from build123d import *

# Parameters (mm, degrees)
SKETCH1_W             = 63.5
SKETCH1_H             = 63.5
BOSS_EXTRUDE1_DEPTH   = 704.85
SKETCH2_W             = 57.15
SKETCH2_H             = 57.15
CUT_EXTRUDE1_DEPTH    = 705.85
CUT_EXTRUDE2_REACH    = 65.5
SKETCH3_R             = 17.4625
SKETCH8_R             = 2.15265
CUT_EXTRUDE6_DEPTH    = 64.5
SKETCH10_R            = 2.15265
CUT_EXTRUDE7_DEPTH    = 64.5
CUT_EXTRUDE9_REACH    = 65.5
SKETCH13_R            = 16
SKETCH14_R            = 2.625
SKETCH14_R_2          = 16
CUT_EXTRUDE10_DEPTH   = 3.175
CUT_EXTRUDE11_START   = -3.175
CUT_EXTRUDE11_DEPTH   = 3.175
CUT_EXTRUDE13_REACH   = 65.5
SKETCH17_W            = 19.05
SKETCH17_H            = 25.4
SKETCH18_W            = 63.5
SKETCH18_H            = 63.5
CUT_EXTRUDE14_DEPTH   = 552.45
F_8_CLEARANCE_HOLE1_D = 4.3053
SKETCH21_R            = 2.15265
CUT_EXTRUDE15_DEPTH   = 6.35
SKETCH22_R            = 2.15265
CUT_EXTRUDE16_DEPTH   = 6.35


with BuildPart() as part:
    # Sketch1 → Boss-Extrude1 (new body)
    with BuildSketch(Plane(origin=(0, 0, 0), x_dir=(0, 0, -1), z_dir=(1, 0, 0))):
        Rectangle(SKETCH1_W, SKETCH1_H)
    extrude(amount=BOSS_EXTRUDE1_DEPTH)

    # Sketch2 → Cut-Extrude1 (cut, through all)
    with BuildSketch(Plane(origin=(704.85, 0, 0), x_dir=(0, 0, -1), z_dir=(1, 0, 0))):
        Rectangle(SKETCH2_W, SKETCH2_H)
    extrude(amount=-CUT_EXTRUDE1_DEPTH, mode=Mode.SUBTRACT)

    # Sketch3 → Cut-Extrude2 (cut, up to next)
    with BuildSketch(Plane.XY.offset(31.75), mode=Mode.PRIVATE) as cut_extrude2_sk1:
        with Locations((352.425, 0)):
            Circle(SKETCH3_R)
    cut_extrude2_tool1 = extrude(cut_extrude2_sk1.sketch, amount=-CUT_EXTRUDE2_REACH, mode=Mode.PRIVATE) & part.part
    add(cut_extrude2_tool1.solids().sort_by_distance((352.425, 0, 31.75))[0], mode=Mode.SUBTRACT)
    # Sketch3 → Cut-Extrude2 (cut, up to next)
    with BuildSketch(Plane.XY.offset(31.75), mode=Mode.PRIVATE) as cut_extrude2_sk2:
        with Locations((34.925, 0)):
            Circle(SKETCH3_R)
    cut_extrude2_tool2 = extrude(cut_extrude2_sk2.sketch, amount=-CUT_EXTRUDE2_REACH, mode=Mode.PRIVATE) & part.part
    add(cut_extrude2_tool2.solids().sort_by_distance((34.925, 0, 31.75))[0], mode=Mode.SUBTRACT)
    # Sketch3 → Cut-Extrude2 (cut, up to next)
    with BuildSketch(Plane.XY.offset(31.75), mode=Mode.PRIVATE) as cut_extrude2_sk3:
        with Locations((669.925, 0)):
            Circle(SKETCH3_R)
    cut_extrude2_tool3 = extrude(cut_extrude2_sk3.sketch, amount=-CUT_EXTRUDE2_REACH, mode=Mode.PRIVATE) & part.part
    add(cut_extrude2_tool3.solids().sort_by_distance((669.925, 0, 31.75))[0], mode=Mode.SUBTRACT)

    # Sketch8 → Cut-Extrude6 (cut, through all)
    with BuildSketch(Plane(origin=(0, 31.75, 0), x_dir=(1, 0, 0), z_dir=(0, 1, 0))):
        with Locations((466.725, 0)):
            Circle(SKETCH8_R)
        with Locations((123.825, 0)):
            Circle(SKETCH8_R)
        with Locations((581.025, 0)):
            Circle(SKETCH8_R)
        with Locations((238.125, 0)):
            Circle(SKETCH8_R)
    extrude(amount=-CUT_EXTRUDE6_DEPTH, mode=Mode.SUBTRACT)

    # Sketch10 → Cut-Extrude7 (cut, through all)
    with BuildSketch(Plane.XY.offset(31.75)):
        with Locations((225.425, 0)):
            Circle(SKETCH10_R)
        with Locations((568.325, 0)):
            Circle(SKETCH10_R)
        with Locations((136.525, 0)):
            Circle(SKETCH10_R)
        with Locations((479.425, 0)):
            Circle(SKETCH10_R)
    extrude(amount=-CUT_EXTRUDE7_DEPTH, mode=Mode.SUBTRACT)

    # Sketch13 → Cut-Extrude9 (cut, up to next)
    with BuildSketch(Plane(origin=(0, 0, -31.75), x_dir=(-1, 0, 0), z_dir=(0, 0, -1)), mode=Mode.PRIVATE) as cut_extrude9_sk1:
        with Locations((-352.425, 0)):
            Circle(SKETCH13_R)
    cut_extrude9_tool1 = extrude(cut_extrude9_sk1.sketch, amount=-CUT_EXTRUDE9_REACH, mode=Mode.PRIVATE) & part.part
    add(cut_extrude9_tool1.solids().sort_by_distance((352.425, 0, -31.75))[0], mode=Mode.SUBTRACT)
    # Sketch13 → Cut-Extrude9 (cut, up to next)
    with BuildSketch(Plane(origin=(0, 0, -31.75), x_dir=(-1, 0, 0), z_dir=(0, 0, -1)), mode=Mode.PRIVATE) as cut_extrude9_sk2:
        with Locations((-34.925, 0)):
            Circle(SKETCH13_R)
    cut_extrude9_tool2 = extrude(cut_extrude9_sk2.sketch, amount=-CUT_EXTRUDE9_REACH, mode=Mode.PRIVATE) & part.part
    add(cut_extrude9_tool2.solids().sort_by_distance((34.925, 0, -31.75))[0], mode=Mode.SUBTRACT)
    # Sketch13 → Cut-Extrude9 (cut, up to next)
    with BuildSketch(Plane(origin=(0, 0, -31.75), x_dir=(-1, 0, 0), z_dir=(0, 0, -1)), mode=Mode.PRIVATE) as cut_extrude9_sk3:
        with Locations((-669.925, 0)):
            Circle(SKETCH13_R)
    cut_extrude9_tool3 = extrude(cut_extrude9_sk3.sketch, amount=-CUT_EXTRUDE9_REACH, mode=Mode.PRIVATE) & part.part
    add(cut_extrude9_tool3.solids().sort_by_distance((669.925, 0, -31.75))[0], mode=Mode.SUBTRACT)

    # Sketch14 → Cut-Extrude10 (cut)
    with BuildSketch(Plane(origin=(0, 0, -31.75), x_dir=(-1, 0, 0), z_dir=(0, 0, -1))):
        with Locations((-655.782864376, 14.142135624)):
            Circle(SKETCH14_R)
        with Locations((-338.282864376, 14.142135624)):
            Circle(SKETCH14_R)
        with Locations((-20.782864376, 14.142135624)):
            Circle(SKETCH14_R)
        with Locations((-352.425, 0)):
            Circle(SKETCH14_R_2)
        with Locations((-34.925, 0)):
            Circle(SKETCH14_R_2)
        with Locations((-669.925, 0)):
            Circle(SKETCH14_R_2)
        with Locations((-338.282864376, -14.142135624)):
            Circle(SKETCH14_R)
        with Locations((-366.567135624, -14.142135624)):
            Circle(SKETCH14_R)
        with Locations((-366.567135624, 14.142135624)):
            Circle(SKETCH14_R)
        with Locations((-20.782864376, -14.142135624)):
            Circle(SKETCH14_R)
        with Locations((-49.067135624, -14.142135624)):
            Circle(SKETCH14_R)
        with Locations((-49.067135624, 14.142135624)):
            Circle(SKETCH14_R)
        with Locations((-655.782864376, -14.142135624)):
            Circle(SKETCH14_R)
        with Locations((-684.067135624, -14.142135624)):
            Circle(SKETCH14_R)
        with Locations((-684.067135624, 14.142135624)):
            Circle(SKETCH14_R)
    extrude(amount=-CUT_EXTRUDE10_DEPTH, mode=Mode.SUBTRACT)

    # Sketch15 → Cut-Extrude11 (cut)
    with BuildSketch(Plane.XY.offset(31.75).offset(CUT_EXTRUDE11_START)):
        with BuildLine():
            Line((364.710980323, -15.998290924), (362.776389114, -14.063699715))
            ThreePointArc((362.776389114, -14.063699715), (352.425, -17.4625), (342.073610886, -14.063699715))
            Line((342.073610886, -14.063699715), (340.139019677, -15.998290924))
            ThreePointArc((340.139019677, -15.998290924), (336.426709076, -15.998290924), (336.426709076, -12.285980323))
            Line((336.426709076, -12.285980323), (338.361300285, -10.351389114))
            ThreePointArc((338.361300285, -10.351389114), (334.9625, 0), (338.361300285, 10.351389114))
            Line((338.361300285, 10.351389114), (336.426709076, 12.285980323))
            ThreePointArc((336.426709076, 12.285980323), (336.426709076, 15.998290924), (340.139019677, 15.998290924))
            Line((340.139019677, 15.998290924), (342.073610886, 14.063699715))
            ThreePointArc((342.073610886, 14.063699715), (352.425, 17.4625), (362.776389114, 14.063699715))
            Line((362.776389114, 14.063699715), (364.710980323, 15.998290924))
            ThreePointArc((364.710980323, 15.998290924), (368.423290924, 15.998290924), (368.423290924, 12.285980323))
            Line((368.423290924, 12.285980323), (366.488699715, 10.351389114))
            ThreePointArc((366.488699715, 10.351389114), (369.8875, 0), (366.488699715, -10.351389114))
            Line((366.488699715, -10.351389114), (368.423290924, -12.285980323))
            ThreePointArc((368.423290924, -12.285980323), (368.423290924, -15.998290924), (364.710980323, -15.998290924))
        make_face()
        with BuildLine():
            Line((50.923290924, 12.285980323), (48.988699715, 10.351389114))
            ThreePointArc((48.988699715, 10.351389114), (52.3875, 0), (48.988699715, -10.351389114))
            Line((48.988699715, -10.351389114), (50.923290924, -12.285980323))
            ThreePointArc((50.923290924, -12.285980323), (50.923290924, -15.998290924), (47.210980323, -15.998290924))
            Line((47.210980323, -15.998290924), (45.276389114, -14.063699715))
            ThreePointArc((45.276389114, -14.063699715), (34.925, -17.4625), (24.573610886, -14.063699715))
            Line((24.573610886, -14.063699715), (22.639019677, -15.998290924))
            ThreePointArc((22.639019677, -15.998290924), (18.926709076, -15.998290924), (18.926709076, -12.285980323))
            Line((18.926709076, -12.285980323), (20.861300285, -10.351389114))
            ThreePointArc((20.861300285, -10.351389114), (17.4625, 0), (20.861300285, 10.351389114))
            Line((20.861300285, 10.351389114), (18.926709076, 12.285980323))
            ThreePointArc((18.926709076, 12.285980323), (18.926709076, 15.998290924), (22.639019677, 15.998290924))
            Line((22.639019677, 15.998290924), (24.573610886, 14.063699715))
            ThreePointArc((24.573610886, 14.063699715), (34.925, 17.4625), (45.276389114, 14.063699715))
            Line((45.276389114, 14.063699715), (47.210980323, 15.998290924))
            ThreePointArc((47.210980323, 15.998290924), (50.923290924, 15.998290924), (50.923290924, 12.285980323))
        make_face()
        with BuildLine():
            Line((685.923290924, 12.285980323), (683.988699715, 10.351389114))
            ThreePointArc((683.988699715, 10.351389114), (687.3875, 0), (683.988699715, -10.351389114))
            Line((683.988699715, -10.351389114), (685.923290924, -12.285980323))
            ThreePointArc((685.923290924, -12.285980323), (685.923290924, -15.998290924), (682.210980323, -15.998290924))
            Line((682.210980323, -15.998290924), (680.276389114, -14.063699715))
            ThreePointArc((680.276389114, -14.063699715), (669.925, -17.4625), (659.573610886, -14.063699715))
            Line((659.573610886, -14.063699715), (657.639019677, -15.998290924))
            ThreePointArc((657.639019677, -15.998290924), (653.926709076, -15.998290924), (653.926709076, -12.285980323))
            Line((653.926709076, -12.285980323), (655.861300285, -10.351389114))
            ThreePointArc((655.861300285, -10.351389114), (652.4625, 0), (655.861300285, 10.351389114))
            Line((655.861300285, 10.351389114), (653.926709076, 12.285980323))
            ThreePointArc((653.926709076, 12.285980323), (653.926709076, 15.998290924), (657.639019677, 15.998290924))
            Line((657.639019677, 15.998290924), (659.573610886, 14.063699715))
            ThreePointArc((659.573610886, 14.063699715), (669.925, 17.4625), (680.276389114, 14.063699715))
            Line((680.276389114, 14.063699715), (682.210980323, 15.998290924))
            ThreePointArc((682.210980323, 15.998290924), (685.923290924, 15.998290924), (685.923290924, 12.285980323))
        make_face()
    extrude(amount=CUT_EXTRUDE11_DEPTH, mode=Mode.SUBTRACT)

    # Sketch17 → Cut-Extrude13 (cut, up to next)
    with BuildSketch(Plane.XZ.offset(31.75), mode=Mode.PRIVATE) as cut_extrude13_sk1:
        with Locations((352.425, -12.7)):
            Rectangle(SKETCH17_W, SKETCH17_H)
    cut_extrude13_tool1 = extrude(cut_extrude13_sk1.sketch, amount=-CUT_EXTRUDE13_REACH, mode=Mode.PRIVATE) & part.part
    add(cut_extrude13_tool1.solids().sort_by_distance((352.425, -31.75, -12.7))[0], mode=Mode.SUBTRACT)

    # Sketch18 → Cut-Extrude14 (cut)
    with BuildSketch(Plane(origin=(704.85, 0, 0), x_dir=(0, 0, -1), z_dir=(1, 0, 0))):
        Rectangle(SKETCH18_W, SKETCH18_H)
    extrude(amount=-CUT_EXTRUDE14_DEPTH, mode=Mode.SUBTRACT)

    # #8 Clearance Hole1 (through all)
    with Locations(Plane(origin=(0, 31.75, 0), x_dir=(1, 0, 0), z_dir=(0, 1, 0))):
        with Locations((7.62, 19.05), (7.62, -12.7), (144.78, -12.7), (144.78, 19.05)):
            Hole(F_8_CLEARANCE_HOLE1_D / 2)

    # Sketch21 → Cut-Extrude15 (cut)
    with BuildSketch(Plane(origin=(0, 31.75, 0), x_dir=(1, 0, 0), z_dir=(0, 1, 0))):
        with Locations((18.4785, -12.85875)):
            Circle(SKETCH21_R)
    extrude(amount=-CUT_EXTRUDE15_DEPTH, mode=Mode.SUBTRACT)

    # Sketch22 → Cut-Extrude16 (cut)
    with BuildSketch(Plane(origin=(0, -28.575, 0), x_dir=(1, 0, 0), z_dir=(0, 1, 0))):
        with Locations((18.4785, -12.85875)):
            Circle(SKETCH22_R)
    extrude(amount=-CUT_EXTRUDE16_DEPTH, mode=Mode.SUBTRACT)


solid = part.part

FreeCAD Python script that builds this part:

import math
import FreeCAD as App
import Part
import Sketcher

V = App.Vector
Q = App.Units.Quantity


def add_polygon(sketch, points):
    """Adds a closed chain of lines whose ends are joined by coincident constraints."""
    first, n = sketch.GeometryCount, len(points)
    for a, b in zip(points, points[1:] + points[:1]):
        sketch.addGeometry(Part.LineSegment(App.Vector(*a, 0), App.Vector(*b, 0)), False)
    for i in range(n):
        sketch.addConstraint(Sketcher.Constraint("Coincident", first + i, 2, first + (i + 1) % n, 1))

doc = App.newDocument("Part")
body = doc.addObject("PartDesign::Body", "Body")

sketch1 = doc.addObject("Sketcher::SketchObject", "Sketch")
body.addObject(sketch1)
sketch1.AttachmentSupport = (doc.YZ_Plane, [""])
sketch1.MapMode = "FlatFace"
add_polygon(sketch1, [(32, 32), (-32, 32), (-32, -32), (32, -32)])
sketch1.addConstraint([
    Sketcher.Constraint("Horizontal", 0),
    Sketcher.Constraint("Vertical", 1),
    Sketcher.Constraint("Horizontal", 2),
    Sketcher.Constraint("Vertical", 3),
    Sketcher.Constraint("Symmetric", 0, 2, 2, 2, -1, 1),
    Sketcher.Constraint("Equal", 2, 1),
    Sketcher.Constraint("DistanceX", 0, 2, 0, 1, Q("2.5 in")),
])
pad1 = doc.addObject("PartDesign::Pad", "Pad")
body.addObject(pad1)
pad1.Profile = sketch1
pad1.Length = Q("27.75 in")

sketch2 = doc.addObject("Sketcher::SketchObject", "Sketch001")
body.addObject(sketch2)
sketch2.AttachmentSupport = (doc.YZ_Plane, [""])
sketch2.MapMode = "FlatFace"
sketch2.AttachmentOffset = App.Placement(V(0, 0, 27.75 * 25.4), App.Rotation())
add_polygon(sketch2, [(29, 29), (-29, 29), (-29, -29), (29, -29)])
sketch2.addConstraint([
    Sketcher.Constraint("Horizontal", 0),
    Sketcher.Constraint("Vertical", 1),
    Sketcher.Constraint("Horizontal", 2),
    Sketcher.Constraint("Vertical", 3),
    Sketcher.Constraint("Symmetric", 0, 2, 2, 2, -1, 1),
    Sketcher.Constraint("Equal", 2, 1),
    Sketcher.Constraint("DistanceX", 0, 2, 0, 1, Q("2.25 in")),
])
pocket1 = doc.addObject("PartDesign::Pocket", "Pocket")
body.addObject(pocket1)
pocket1.Profile = sketch2
pocket1.Type = "ThroughAll"

sketch3 = doc.addObject("Sketcher::SketchObject", "Sketch002")
body.addObject(sketch3)
sketch3.AttachmentSupport = (doc.XY_Plane, [""])
sketch3.MapMode = "FlatFace"
sketch3.AttachmentOffset = App.Placement(V(0, 0, 1.25 * 25.4), App.Rotation())
sketch3.addGeometry(Part.Circle(V(352, 0, 0), V(0, 0, 1), 17), False)
sketch3.addConstraint([
    Sketcher.Constraint("PointOnObject", 0, 3, -1),
    Sketcher.Constraint("Diameter", 0, Q("1.375 in")),
    Sketcher.Constraint("DistanceX", -1, 1, 0, 3, Q("13.875 in")),
])
pocket2 = doc.addObject("PartDesign::Pocket", "Pocket001")
body.addObject(pocket2)
pocket2.Profile = sketch3
pocket2.Type = "UpToFirst"

sketch4 = doc.addObject("Sketcher::SketchObject", "Sketch003")
body.addObject(sketch4)
sketch4.AttachmentSupport = (doc.XY_Plane, [""])
sketch4.MapMode = "FlatFace"
sketch4.AttachmentOffset = App.Placement(V(0, 0, 1.25 * 25.4), App.Rotation())
sketch4.addGeometry(Part.Circle(V(35, 0, 0), V(0, 0, 1), 17), False)
sketch4.addConstraint([
    Sketcher.Constraint("PointOnObject", 0, 3, -1),
    Sketcher.Constraint("Diameter", 0, Q("1.375 in")),
    Sketcher.Constraint("DistanceX", -1, 1, 0, 3, Q("1.375 in")),
])
pocket3 = doc.addObject("PartDesign::Pocket", "Pocket002")
body.addObject(pocket3)
pocket3.Profile = sketch4
pocket3.Type = "UpToFirst"

sketch5 = doc.addObject("Sketcher::SketchObject", "Sketch004")
body.addObject(sketch5)
sketch5.AttachmentSupport = (doc.XY_Plane, [""])
sketch5.MapMode = "FlatFace"
sketch5.AttachmentOffset = App.Placement(V(0, 0, 1.25 * 25.4), App.Rotation())
sketch5.addGeometry(Part.Circle(V(670, 0, 0), V(0, 0, 1), 17), False)
sketch5.addConstraint([
    Sketcher.Constraint("PointOnObject", 0, 3, -1),
    Sketcher.Constraint("Diameter", 0, Q("1.375 in")),
    Sketcher.Constraint("DistanceX", -1, 1, 0, 3, Q("26.375 in")),
])
pocket4 = doc.addObject("PartDesign::Pocket", "Pocket003")
body.addObject(pocket4)
pocket4.Profile = sketch5
pocket4.Type = "UpToFirst"

sketch6 = doc.addObject("Sketcher::SketchObject", "Sketch005")
body.addObject(sketch6)
sketch6.AttachmentSupport = (doc.XZ_Plane, [""])
sketch6.MapMode = "FlatFace"
sketch6.AttachmentOffset = App.Placement(V(0, 0, -1.25 * 25.4), App.Rotation())
sketch6.addGeometry([
    Part.Circle(V(466.7, 0, 0), V(0, 0, 1), 2.2),
    Part.Circle(V(123.8, 0, 0), V(0, 0, 1), 2.2),
    Part.Circle(V(581, 0, 0), V(0, 0, 1), 2.2),
    Part.Circle(V(238.1, 0, 0), V(0, 0, 1), 2.2),
], False)
sketch6.addConstraint([
    Sketcher.Constraint("Equal", 0, 1),
    Sketcher.Constraint("Equal", 1, 2),
    Sketcher.Constraint("Equal", 2, 3),
    Sketcher.Constraint("PointOnObject", 0, 3, -1),
    Sketcher.Constraint("PointOnObject", 1, 3, -1),
    Sketcher.Constraint("PointOnObject", 2, 3, -1),
    Sketcher.Constraint("PointOnObject", 3, 3, -1),
    Sketcher.Constraint("DistanceX", 1, 3, 2, 3, Q("18 in")),
    Sketcher.Constraint("DistanceX", 3, 3, 0, 3, Q("9 in")),
    Sketcher.Constraint("Diameter", 0, Q("0.1695 in")),
    Sketcher.Constraint("DistanceX", 1, 3, 0, 3, Q("13.5 in")),
    Sketcher.Constraint("DistanceX", -1, 1, 0, 3, Q("18.375 in")),
])
pocket5 = doc.addObject("PartDesign::Pocket", "Pocket004")
body.addObject(pocket5)
pocket5.Profile = sketch6
pocket5.Type = "ThroughAll"
pocket5.Reversed = True

sketch7 = doc.addObject("Sketcher::SketchObject", "Sketch006")
body.addObject(sketch7)
sketch7.AttachmentSupport = (doc.XY_Plane, [""])
sketch7.MapMode = "FlatFace"
sketch7.AttachmentOffset = App.Placement(V(0, 0, 1.25 * 25.4), App.Rotation())
sketch7.addGeometry([
    Part.Circle(V(225.4, 0, 0), V(0, 0, 1), 2.2),
    Part.Circle(V(568.3, 0, 0), V(0, 0, 1), 2.2),
    Part.Circle(V(136.5, 0, 0), V(0, 0, 1), 2.2),
    Part.Circle(V(479.4, 0, 0), V(0, 0, 1), 2.2),
], False)
sketch7.addConstraint([
    Sketcher.Constraint("Equal", 0, 1),
    Sketcher.Constraint("Equal", 1, 2),
    Sketcher.Constraint("Equal", 2, 3),
    Sketcher.Constraint("PointOnObject", 0, 3, -1),
    Sketcher.Constraint("PointOnObject", 1, 3, -1),
    Sketcher.Constraint("PointOnObject", 2, 3, -1),
    Sketcher.Constraint("PointOnObject", 3, 3, -1),
    Sketcher.Constraint("DistanceX", 2, 3, 1, 3, Q("17 in")),
    Sketcher.Constraint("DistanceX", 0, 3, 3, 3, Q("10 in")),
    Sketcher.Constraint("Diameter", 0, Q("0.1695 in")),
    Sketcher.Constraint("DistanceX", 0, 3, 1, 3, Q("13.5 in")),
    Sketcher.Constraint("DistanceX", -1, 1, 0, 3, Q("8.875 in")),
])
pocket6 = doc.addObject("PartDesign::Pocket", "Pocket005")
body.addObject(pocket6)
pocket6.Profile = sketch7
pocket6.Type = "ThroughAll"

sketch8 = doc.addObject("Sketcher::SketchObject", "Sketch007")
body.addObject(sketch8)
sketch8.AttachmentSupport = (doc.XY_Plane, [""])
sketch8.MapMode = "FlatFace"
sketch8.AttachmentOffset = App.Placement(V(0, 0, -1.25 * 25.4), App.Rotation())
sketch8.addGeometry(Part.Circle(V(352, 0, 0), V(0, 0, 1), 16), False)
sketch8.addConstraint([
    Sketcher.Constraint("PointOnObject", 0, 3, -1),
    Sketcher.Constraint("Diameter", 0, Q("32 mm")),
    Sketcher.Constraint("DistanceX", -1, 1, 0, 3, Q("13.875 in")),
])
pocket7 = doc.addObject("PartDesign::Pocket", "Pocket006")
body.addObject(pocket7)
pocket7.Profile = sketch8
pocket7.Type = "UpToFirst"
pocket7.Reversed = True

sketch9 = doc.addObject("Sketcher::SketchObject", "Sketch008")
body.addObject(sketch9)
sketch9.AttachmentSupport = (doc.XY_Plane, [""])
sketch9.MapMode = "FlatFace"
sketch9.AttachmentOffset = App.Placement(V(0, 0, -1.25 * 25.4), App.Rotation())
sketch9.addGeometry(Part.Circle(V(35, 0, 0), V(0, 0, 1), 16), False)
sketch9.addConstraint([
    Sketcher.Constraint("PointOnObject", 0, 3, -1),
    Sketcher.Constraint("Diameter", 0, Q("32 mm")),
    Sketcher.Constraint("DistanceX", -1, 1, 0, 3, Q("1.375 in")),
])
pocket8 = doc.addObject("PartDesign::Pocket", "Pocket007")
body.addObject(pocket8)
pocket8.Profile = sketch9
pocket8.Type = "UpToFirst"
pocket8.Reversed = True

sketch10 = doc.addObject("Sketcher::SketchObject", "Sketch009")
body.addObject(sketch10)
sketch10.AttachmentSupport = (doc.XY_Plane, [""])
sketch10.MapMode = "FlatFace"
sketch10.AttachmentOffset = App.Placement(V(0, 0, -1.25 * 25.4), App.Rotation())
sketch10.addGeometry(Part.Circle(V(670, 0, 0), V(0, 0, 1), 16), False)
sketch10.addConstraint([
    Sketcher.Constraint("PointOnObject", 0, 3, -1),
    Sketcher.Constraint("Diameter", 0, Q("32 mm")),
    Sketcher.Constraint("DistanceX", -1, 1, 0, 3, Q("26.375 in")),
])
pocket9 = doc.addObject("PartDesign::Pocket", "Pocket008")
body.addObject(pocket9)
pocket9.Profile = sketch10
pocket9.Type = "UpToFirst"
pocket9.Reversed = True

sketch11 = doc.addObject("Sketcher::SketchObject", "Sketch010")
body.addObject(sketch11)
sketch11.AttachmentSupport = (doc.XY_Plane, [""])
sketch11.MapMode = "FlatFace"
sketch11.AttachmentOffset = App.Placement(V(0, 0, -1.25 * 25.4), App.Rotation())
sketch11.addGeometry([
    Part.Circle(V(655.8, 14.1, 0), V(0, 0, 1), 2.6),
    Part.Circle(V(338.3, 14.1, 0), V(0, 0, 1), 2.6),
    Part.Circle(V(20.8, 14.1, 0), V(0, 0, 1), 2.6),
    Part.Circle(V(352.4, 0, 0), V(0, 0, 1), 16),
    Part.Circle(V(34.9, 0, 0), V(0, 0, 1), 16),
    Part.Circle(V(669.9, 0, 0), V(0, 0, 1), 16),
    Part.Circle(V(338.3, -14.1, 0), V(0, 0, 1), 2.6),
    Part.Circle(V(366.6, -14.1, 0), V(0, 0, 1), 2.6),
    Part.Circle(V(366.6, 14.1, 0), V(0, 0, 1), 2.6),
    Part.Circle(V(20.8, -14.1, 0), V(0, 0, 1), 2.6),
    Part.Circle(V(49.1, -14.1, 0), V(0, 0, 1), 2.6),
    Part.Circle(V(49.1, 14.1, 0), V(0, 0, 1), 2.6),
    Part.Circle(V(655.8, -14.1, 0), V(0, 0, 1), 2.6),
    Part.Circle(V(684.1, -14.1, 0), V(0, 0, 1), 2.6),
    Part.Circle(V(684.1, 14.1, 0), V(0, 0, 1), 2.6),
], False)
sketch11.addConstraint([
    Sketcher.Constraint("Equal", 0, 1),
    Sketcher.Constraint("Equal", 1, 2),
    Sketcher.Constraint("Equal", 3, 4),
    Sketcher.Constraint("Equal", 4, 5),
    Sketcher.Constraint("Equal", 2, 6),
    Sketcher.Constraint("Equal", 6, 7),
    Sketcher.Constraint("Equal", 7, 8),
    Sketcher.Constraint("Equal", 8, 9),
    Sketcher.Constraint("Equal", 9, 10),
    Sketcher.Constraint("Equal", 10, 11),
    Sketcher.Constraint("Equal", 11, 12),
    Sketcher.Constraint("Equal", 12, 13),
    Sketcher.Constraint("Equal", 13, 14),
    Sketcher.Constraint("Symmetric", 1, 3, 6, 3, -1),
    Sketcher.Constraint("Symmetric", 7, 3, 8, 3, -1),
    Sketcher.Constraint("Symmetric", 2, 3, 9, 3, -1),
    Sketcher.Constraint("Symmetric", 10, 3, 11, 3, -1),
    Sketcher.Constraint("Symmetric", 0, 3, 12, 3, -1),
    Sketcher.Constraint("Symmetric", 13, 3, 14, 3, -1),
    Sketcher.Constraint("PointOnObject", 3, 3, -1),
    Sketcher.Constraint("PointOnObject", 4, 3, -1),
    Sketcher.Constraint("PointOnObject", 5, 3, -1),
    Sketcher.Constraint("Horizontal", 0, 3, 1, 3),
    Sketcher.Constraint("Horizontal", 1, 3, 2, 3),
    Sketcher.Constraint("Horizontal", 6, 3, 7, 3),
    Sketcher.Constraint("Horizontal", 9, 3, 10, 3),
    Sketcher.Constraint("Horizontal", 12, 3, 13, 3),
    Sketcher.Constraint("DistanceX", 2, 3, 0, 3, Q("25 in")),
    Sketcher.Constraint("DistanceX", 4, 3, 5, 3, Q("25 in")),
    Sketcher.Constraint("DistanceX", 1, 3, 0, 3, Q("12.5 in")),
    Sketcher.Constraint("DistanceX", 4, 3, 3, 3, Q("12.5 in")),
    Sketcher.Constraint("DistanceX", 7, 3, 13, 3, Q("12.5 in")),
    Sketcher.Constraint("Diameter", 0, Q("5.25 mm")),
    Sketcher.Constraint("Diameter", 3, Q("32 mm")),
    Sketcher.Constraint("DistanceX", -1, 1, 3, 3, Q("13.875 in")),
    Sketcher.Constraint("DistanceY", 6, 3, 1, 3, Q("28.284271 mm")),
    Sketcher.Constraint("DistanceX", 6, 3, 7, 3, Q("28.284271 mm")),
    Sketcher.Constraint("DistanceX", 9, 3, 10, 3, Q("28.284271 mm")),
    Sketcher.Constraint("DistanceX", -1, 1, 0, 3, Q("655.782864 mm")),
])
pocket10 = doc.addObject("PartDesign::Pocket", "Pocket009")
body.addObject(pocket10)
pocket10.Profile = sketch11
pocket10.Length = Q("0.125 in")
pocket10.Reversed = True

sketch12 = doc.addObject("Sketcher::SketchObject", "Sketch011")
body.addObject(sketch12)
sketch12.AttachmentSupport = (doc.XY_Plane, [""])
sketch12.MapMode = "FlatFace"
sketch12.AttachmentOffset = App.Placement(V(0, 0, 1.125 * 25.4), App.Rotation())
sketch12.addGeometry([
    Part.LineSegment(V(362.8, -14.1, 0), V(364.7, -16, 0)),
    Part.ArcOfCircle(Part.Circle(V(366.6, -14.1, 0), V(0, 0, 1), 2.6), math.radians(-135), math.radians(45)),
    Part.LineSegment(V(368.4, -12.3, 0), V(366.5, -10.4, 0)),
    Part.ArcOfCircle(Part.Circle(V(352.4, 0, 0), V(0, 0, 1), 17.5), math.radians(-36), math.radians(36)),
    Part.LineSegment(V(366.5, 10.4, 0), V(368.4, 12.3, 0)),
    Part.ArcOfCircle(Part.Circle(V(366.6, 14.1, 0), V(0, 0, 1), 2.6), math.radians(-45), math.radians(135)),
    Part.LineSegment(V(364.7, 16, 0), V(362.8, 14.1, 0)),
    Part.ArcOfCircle(Part.Circle(V(352.4, 0, 0), V(0, 0, 1), 17.5), math.radians(54), math.radians(126)),
    Part.LineSegment(V(342.1, 14.1, 0), V(340.1, 16, 0)),
    Part.ArcOfCircle(Part.Circle(V(338.3, 14.1, 0), V(0, 0, 1), 2.6), math.radians(45), math.radians(225)),
    Part.LineSegment(V(336.4, 12.3, 0), V(338.4, 10.4, 0)),
    Part.ArcOfCircle(Part.Circle(V(352.4, 0, 0), V(0, 0, 1), 17.5), math.radians(144), math.radians(216)),
    Part.LineSegment(V(338.4, -10.4, 0), V(336.4, -12.3, 0)),
    Part.ArcOfCircle(Part.Circle(V(338.3, -14.1, 0), V(0, 0, 1), 2.6), math.radians(135), math.radians(315)),
    Part.LineSegment(V(340.1, -16, 0), V(342.1, -14.1, 0)),
    Part.ArcOfCircle(Part.Circle(V(352.4, 0, 0), V(0, 0, 1), 17.5), math.radians(-126), math.radians(-54)),
    Part.LineSegment(V(49, 10.4, 0), V(50.9, 12.3, 0)),
    Part.ArcOfCircle(Part.Circle(V(49.1, 14.1, 0), V(0, 0, 1), 2.6), math.radians(-45), math.radians(135)),
    Part.LineSegment(V(47.2, 16, 0), V(45.3, 14.1, 0)),
    Part.ArcOfCircle(Part.Circle(V(34.9, 0, 0), V(0, 0, 1), 17.5), math.radians(54), math.radians(126)),
    Part.LineSegment(V(24.6, 14.1, 0), V(22.6, 16, 0)),
    Part.ArcOfCircle(Part.Circle(V(20.8, 14.1, 0), V(0, 0, 1), 2.6), math.radians(45), math.radians(225)),
    Part.LineSegment(V(18.9, 12.3, 0), V(20.9, 10.4, 0)),
    Part.ArcOfCircle(Part.Circle(V(34.9, 0, 0), V(0, 0, 1), 17.5), math.radians(144), math.radians(216)),
    Part.LineSegment(V(20.9, -10.4, 0), V(18.9, -12.3, 0)),
    Part.ArcOfCircle(Part.Circle(V(20.8, -14.1, 0), V(0, 0, 1), 2.6), math.radians(135), math.radians(315)),
    Part.LineSegment(V(22.6, -16, 0), V(24.6, -14.1, 0)),
    Part.ArcOfCircle(Part.Circle(V(34.9, 0, 0), V(0, 0, 1), 17.5), math.radians(-126), math.radians(-54)),
    Part.LineSegment(V(45.3, -14.1, 0), V(47.2, -16, 0)),
    Part.ArcOfCircle(Part.Circle(V(49.1, -14.1, 0), V(0, 0, 1), 2.6), math.radians(-135), math.radians(45)),
    Part.LineSegment(V(50.9, -12.3, 0), V(49, -10.4, 0)),
    Part.ArcOfCircle(Part.Circle(V(34.9, 0, 0), V(0, 0, 1), 17.5), math.radians(-36), math.radians(36)),
    Part.LineSegment(V(684, 10.4, 0), V(685.9, 12.3, 0)),
    Part.ArcOfCircle(Part.Circle(V(684.1, 14.1, 0), V(0, 0, 1), 2.6), math.radians(-45), math.radians(135)),
    Part.LineSegment(V(682.2, 16, 0), V(680.3, 14.1, 0)),
    Part.ArcOfCircle(Part.Circle(V(669.9, 0, 0), V(0, 0, 1), 17.5), math.radians(54), math.radians(126)),
    Part.LineSegment(V(659.6, 14.1, 0), V(657.6, 16, 0)),
    Part.ArcOfCircle(Part.Circle(V(655.8, 14.1, 0), V(0, 0, 1), 2.6), math.radians(45), math.radians(225)),
    Part.LineSegment(V(653.9, 12.3, 0), V(655.9, 10.4, 0)),
    Part.ArcOfCircle(Part.Circle(V(669.9, 0, 0), V(0, 0, 1), 17.5), math.radians(144), math.radians(216)),
    Part.LineSegment(V(655.9, -10.4, 0), V(653.9, -12.3, 0)),
    Part.ArcOfCircle(Part.Circle(V(655.8, -14.1, 0), V(0, 0, 1), 2.6), math.radians(135), math.radians(315)),
    Part.LineSegment(V(657.6, -16, 0), V(659.6, -14.1, 0)),
    Part.ArcOfCircle(Part.Circle(V(669.9, 0, 0), V(0, 0, 1), 17.5), math.radians(-126), math.radians(-54)),
    Part.LineSegment(V(680.3, -14.1, 0), V(682.2, -16, 0)),
    Part.ArcOfCircle(Part.Circle(V(684.1, -14.1, 0), V(0, 0, 1), 2.6), math.radians(-135), math.radians(45)),
    Part.LineSegment(V(685.9, -12.3, 0), V(684, -10.4, 0)),
    Part.ArcOfCircle(Part.Circle(V(669.9, 0, 0), V(0, 0, 1), 17.5), math.radians(-36), math.radians(36)),
], False)
sketch12.addConstraint([
    Sketcher.Constraint("Tangent", 0, 2, 1, 1),
    Sketcher.Constraint("Tangent", 1, 2, 2, 1),
    Sketcher.Constraint("Coincident", 2, 2, 3, 1),
    Sketcher.Constraint("Coincident", 3, 2, 4, 1),
    Sketcher.Constraint("Tangent", 4, 2, 5, 1),
    Sketcher.Constraint("Tangent", 5, 2, 6, 1),
    Sketcher.Constraint("Coincident", 6, 2, 7, 1),
    Sketcher.Constraint("Coincident", 7, 2, 8, 1),
    Sketcher.Constraint("Tangent", 8, 2, 9, 1),
    Sketcher.Constraint("Tangent", 9, 2, 10, 1),
    Sketcher.Constraint("Coincident", 10, 2, 11, 1),
    Sketcher.Constraint("Coincident", 11, 2, 12, 1),
    Sketcher.Constraint("Tangent", 12, 2, 13, 1),
    Sketcher.Constraint("Tangent", 13, 2, 14, 1),
    Sketcher.Constraint("Coincident", 14, 2, 15, 1),
    Sketcher.Constraint("Coincident", 15, 2, 0, 1),
    Sketcher.Constraint("Tangent", 16, 2, 17, 1),
    Sketcher.Constraint("Tangent", 17, 2, 18, 1),
    Sketcher.Constraint("Coincident", 18, 2, 19, 1),
    Sketcher.Constraint("Coincident", 19, 2, 20, 1),
    Sketcher.Constraint("Tangent", 20, 2, 21, 1),
    Sketcher.Constraint("Tangent", 21, 2, 22, 1),
    Sketcher.Constraint("Coincident", 22, 2, 23, 1),
    Sketcher.Constraint("Coincident", 23, 2, 24, 1),
    Sketcher.Constraint("Tangent", 24, 2, 25, 1),
    Sketcher.Constraint("Tangent", 25, 2, 26, 1),
    Sketcher.Constraint("Coincident", 26, 2, 27, 1),
    Sketcher.Constraint("Coincident", 27, 2, 28, 1),
    Sketcher.Constraint("Tangent", 28, 2, 29, 1),
    Sketcher.Constraint("Tangent", 29, 2, 30, 1),
    Sketcher.Constraint("Coincident", 30, 2, 31, 1),
    Sketcher.Constraint("Coincident", 31, 2, 16, 1),
    Sketcher.Constraint("Tangent", 32, 2, 33, 1),
    Sketcher.Constraint("Tangent", 33, 2, 34, 1),
    Sketcher.Constraint("Coincident", 34, 2, 35, 1),
    Sketcher.Constraint("Coincident", 35, 2, 36, 1),
    Sketcher.Constraint("Tangent", 36, 2, 37, 1),
    Sketcher.Constraint("Tangent", 37, 2, 38, 1),
    Sketcher.Constraint("Coincident", 38, 2, 39, 1),
    Sketcher.Constraint("Coincident", 39, 2, 40, 1),
    Sketcher.Constraint("Tangent", 40, 2, 41, 1),
    Sketcher.Constraint("Tangent", 41, 2, 42, 1),
    Sketcher.Constraint("Coincident", 42, 2, 43, 1),
    Sketcher.Constraint("Coincident", 43, 2, 44, 1),
    Sketcher.Constraint("Tangent", 44, 2, 45, 1),
    Sketcher.Constraint("Tangent", 45, 2, 46, 1),
    Sketcher.Constraint("Coincident", 46, 2, 47, 1),
    Sketcher.Constraint("Coincident", 47, 2, 32, 1),
    Sketcher.Constraint("Coincident", 7, 3, 3, 3),
    Sketcher.Constraint("Coincident", 11, 3, 3, 3),
    Sketcher.Constraint("Coincident", 15, 3, 3, 3),
    Sketcher.Constraint("Coincident", 23, 3, 19, 3),
    Sketcher.Constraint("Coincident", 27, 3, 19, 3),
    Sketcher.Constraint("Coincident", 31, 3, 19, 3),
    Sketcher.Constraint("Coincident", 39, 3, 35, 3),
    Sketcher.Constraint("Coincident", 43, 3, 35, 3),
    Sketcher.Constraint("Coincident", 47, 3, 35, 3),
    Sketcher.Constraint("Equal", 1, 5),
    Sketcher.Constraint("Equal", 3, 7),
    Sketcher.Constraint("Equal", 5, 9),
    Sketcher.Constraint("Equal", 7, 11),
    Sketcher.Constraint("Equal", 9, 13),
    Sketcher.Constraint("Equal", 11, 15),
    Sketcher.Constraint("Equal", 13, 17),
    Sketcher.Constraint("Equal", 15, 19),
    Sketcher.Constraint("Equal", 17, 21),
    Sketcher.Constraint("Equal", 19, 23),
    Sketcher.Constraint("Equal", 21, 25),
    Sketcher.Constraint("Equal", 23, 27),
    Sketcher.Constraint("Equal", 25, 29),
    Sketcher.Constraint("Equal", 27, 31),
    Sketcher.Constraint("Equal", 29, 33),
    Sketcher.Constraint("Equal", 31, 35),
    Sketcher.Constraint("Equal", 33, 37),
    Sketcher.Constraint("Equal", 35, 39),
    Sketcher.Constraint("Equal", 37, 41),
    Sketcher.Constraint("Equal", 39, 43),
    Sketcher.Constraint("Equal", 41, 45),
    Sketcher.Constraint("Equal", 43, 47),
    Sketcher.Constraint("Symmetric", 1, 3, 5, 3, -1),
    Sketcher.Constraint("Symmetric", 9, 3, 13, 3, -1),
    Sketcher.Constraint("Symmetric", 21, 3, 25, 3, -1),
    Sketcher.Constraint("Symmetric", 17, 3, 29, 3, -1),
    Sketcher.Constraint("Symmetric", 37, 3, 41, 3, -1),
    Sketcher.Constraint("Symmetric", 33, 3, 45, 3, -1),
    Sketcher.Constraint("Symmetric", 2, 2, 3, 2, -1),
    Sketcher.Constraint("Symmetric", 22, 2, 23, 2, -1),
    Sketcher.Constraint("Symmetric", 38, 2, 39, 2, -1),
    Sketcher.Constraint("Parallel", 0, 2),
    Sketcher.Constraint("Perpendicular", 2, 4),
    Sketcher.Constraint("Parallel", 4, 6),
    Sketcher.Constraint("Perpendicular", 6, 8),
    Sketcher.Constraint("Parallel", 8, 10),
    Sketcher.Constraint("Perpendicular", 10, 12),
    Sketcher.Constraint("Parallel", 12, 14),
    Sketcher.Constraint("Parallel", 14, 16),
    Sketcher.Constraint("Parallel", 16, 18),
    Sketcher.Constraint("Perpendicular", 18, 20),
    Sketcher.Constraint("Parallel", 20, 22),
    Sketcher.Constraint("Parallel", 24, 26),
    Sketcher.Constraint("Perpendicular", 26, 28),
    Sketcher.Constraint("Parallel", 28, 30),
    Sketcher.Constraint("Perpendicular", 30, 32),
    Sketcher.Constraint("Parallel", 32, 34),
    Sketcher.Constraint("Perpendicular", 34, 36),
    Sketcher.Constraint("Parallel", 36, 38),
    Sketcher.Constraint("Parallel", 40, 42),
    Sketcher.Constraint("Perpendicular", 42, 44),
    Sketcher.Constraint("Parallel", 44, 46),
    Sketcher.Constraint("Horizontal", 5, 3, 9, 3),
    Sketcher.Constraint("Horizontal", 9, 3, 17, 3),
    Sketcher.Constraint("Horizontal", 17, 3, 21, 3),
    Sketcher.Constraint("Horizontal", 21, 3, 33, 3),
    Sketcher.Constraint("Horizontal", 33, 3, 37, 3),
    Sketcher.Constraint("Horizontal", 6, 2, 7, 2),
    Sketcher.Constraint("Horizontal", 7, 2, 18, 2),
    Sketcher.Constraint("Horizontal", 18, 2, 19, 2),
    Sketcher.Constraint("Horizontal", 19, 2, 34, 2),
    Sketcher.Constraint("Horizontal", 34, 2, 35, 2),
    Sketcher.Constraint("Equal", 0, 2),
    Sketcher.Constraint("Radius", 3, Q("0.6875 in")),
    Sketcher.Constraint("Radius", 1, Q("2.625 mm")),
    Sketcher.Constraint("DistanceX", -1, 1, 3, 3, Q("13.875 in")),
    Sketcher.Constraint("DistanceX", -1, 1, 19, 3, Q("1.375 in")),
    Sketcher.Constraint("DistanceX", -1, 1, 35, 3, Q("26.375 in")),
    Sketcher.Constraint("DistanceX", -1, 1, 0, 2, Q("14.3587 in")),
])
pocket11 = doc.addObject("PartDesign::Pocket", "Pocket010")
body.addObject(pocket11)
pocket11.Profile = sketch12
pocket11.Length = Q("0.125 in")
pocket11.Reversed = True

sketch13 = doc.addObject("Sketcher::SketchObject", "Sketch012")
body.addObject(sketch13)
sketch13.AttachmentSupport = (doc.XZ_Plane, [""])
sketch13.MapMode = "FlatFace"
sketch13.AttachmentOffset = App.Placement(V(0, 0, 1.25 * 25.4), App.Rotation())
add_polygon(sketch13, [(343, 0), (343, -25), (362, -25), (362, 0)])
sketch13.addConstraint([
    Sketcher.Constraint("Vertical", 0),
    Sketcher.Constraint("Horizontal", 1),
    Sketcher.Constraint("Vertical", 2),
    Sketcher.Constraint("Horizontal", 3),
    Sketcher.Constraint("PointOnObject", 2, 2, -1),
    Sketcher.Constraint("DistanceY", 0, 2, 0, 1, Q("1 in")),
    Sketcher.Constraint("DistanceX", 1, 1, 1, 2, Q("0.75 in")),
    Sketcher.Constraint("DistanceX", -1, 1, 0, 2, Q("13.5 in")),
])
pocket12 = doc.addObject("PartDesign::Pocket", "Pocket011")
body.addObject(pocket12)
pocket12.Profile = sketch13
pocket12.Type = "UpToFirst"

sketch14 = doc.addObject("Sketcher::SketchObject", "Sketch013")
body.addObject(sketch14)
sketch14.AttachmentSupport = (doc.YZ_Plane, [""])
sketch14.MapMode = "FlatFace"
sketch14.AttachmentOffset = App.Placement(V(0, 0, 27.75 * 25.4), App.Rotation())
add_polygon(sketch14, [(32, 32), (-32, 32), (-32, -32), (32, -32)])
sketch14.addConstraint([
    Sketcher.Constraint("Horizontal", 0),
    Sketcher.Constraint("Vertical", 1),
    Sketcher.Constraint("Horizontal", 2),
    Sketcher.Constraint("Vertical", 3),
    Sketcher.Constraint("Symmetric", 0, 2, 2, 2, -1, 1),
    Sketcher.Constraint("Equal", 2, 1),
    Sketcher.Constraint("DistanceX", 0, 2, 0, 1, Q("2.5 in")),
])
pocket13 = doc.addObject("PartDesign::Pocket", "Pocket012")
body.addObject(pocket13)
pocket13.Profile = sketch14
pocket13.Length = Q("21.75 in")

sketch15 = doc.addObject("Sketcher::SketchObject", "Sketch014")
body.addObject(sketch15)
sketch15.AttachmentSupport = (doc.XZ_Plane, [""])
sketch15.MapMode = "FlatFace"
sketch15.AttachmentOffset = App.Placement(V(0, 0, -1.25 * 25.4), App.Rotation())
sketch15.addGeometry([
    Part.Circle(V(7.6, -19.1, 0), V(0, 0, 1), 2.2),
    Part.Circle(V(7.6, 12.7, 0), V(0, 0, 1), 2.2),
    Part.Circle(V(144.8, 12.7, 0), V(0, 0, 1), 2.2),
    Part.Circle(V(144.8, -19.1, 0), V(0, 0, 1), 2.2),
], False)
sketch15.addConstraint([
    Sketcher.Constraint("Equal", 0, 1),
    Sketcher.Constraint("Equal", 1, 2),
    Sketcher.Constraint("Equal", 2, 3),
    Sketcher.Constraint("Horizontal", 1, 3, 2, 3),
    Sketcher.Constraint("Horizontal", 0, 3, 3, 3),
    Sketcher.Constraint("Vertical", 0, 3, 1, 3),
    Sketcher.Constraint("Vertical", 2, 3, 3, 3),
    Sketcher.Constraint("Diameter", 0, Q("0.1695 in")),
    Sketcher.Constraint("DistanceX", -1, 1, 0, 3, Q("0.3 in")),
    Sketcher.Constraint("DistanceY", -1, 1, 1, 3, Q("0.5 in")),
    Sketcher.Constraint("DistanceX", -1, 1, 2, 3, Q("5.7 in")),
    Sketcher.Constraint("DistanceY", 0, 3, -1, 1, Q("0.75 in")),
])
doc.recompute()
hole = doc.addObject("PartDesign::Hole", "Hole")
body.addObject(hole)
hole.Profile = sketch15
hole.ThreadType = "None"
hole.Diameter = Q("0.1695 in")
hole.DepthType = "ThroughAll"
hole.Reversed = True

sketch16 = doc.addObject("Sketcher::SketchObject", "Sketch015")
body.addObject(sketch16)
sketch16.AttachmentSupport = (doc.XZ_Plane, [""])
sketch16.MapMode = "FlatFace"
sketch16.AttachmentOffset = App.Placement(V(0, 0, -1.25 * 25.4), App.Rotation())
sketch16.addGeometry(Part.Circle(V(18.5, 12.9, 0), V(0, 0, 1), 2.2), False)
sketch16.addConstraint([
    Sketcher.Constraint("Diameter", 0, Q("0.1695 in")),
    Sketcher.Constraint("DistanceX", -1, 1, 0, 3, Q("0.7275 in")),
    Sketcher.Constraint("DistanceY", -1, 1, 0, 3, Q("12.85875 mm")),
])
pocket14 = doc.addObject("PartDesign::Pocket", "Pocket013")
body.addObject(pocket14)
pocket14.Profile = sketch16
pocket14.Length = Q("0.25 in")
pocket14.Reversed = True

sketch17 = doc.addObject("Sketcher::SketchObject", "Sketch016")
body.addObject(sketch17)
sketch17.AttachmentSupport = (doc.XZ_Plane, [""])
sketch17.MapMode = "FlatFace"
sketch17.AttachmentOffset = App.Placement(V(0, 0, 1.125 * 25.4), App.Rotation())
sketch17.addGeometry(Part.Circle(V(18.5, 12.9, 0), V(0, 0, 1), 2.2), False)
sketch17.addConstraint([
    Sketcher.Constraint("Diameter", 0, Q("0.1695 in")),
    Sketcher.Constraint("DistanceX", -1, 1, 0, 3, Q("0.7275 in")),
    Sketcher.Constraint("DistanceY", -1, 1, 0, 3, Q("12.85875 mm")),
])
pocket15 = doc.addObject("PartDesign::Pocket", "Pocket014")
body.addObject(pocket15)
pocket15.Profile = sketch17
pocket15.Length = Q("0.25 in")
pocket15.Reversed = True

doc.recompute()
